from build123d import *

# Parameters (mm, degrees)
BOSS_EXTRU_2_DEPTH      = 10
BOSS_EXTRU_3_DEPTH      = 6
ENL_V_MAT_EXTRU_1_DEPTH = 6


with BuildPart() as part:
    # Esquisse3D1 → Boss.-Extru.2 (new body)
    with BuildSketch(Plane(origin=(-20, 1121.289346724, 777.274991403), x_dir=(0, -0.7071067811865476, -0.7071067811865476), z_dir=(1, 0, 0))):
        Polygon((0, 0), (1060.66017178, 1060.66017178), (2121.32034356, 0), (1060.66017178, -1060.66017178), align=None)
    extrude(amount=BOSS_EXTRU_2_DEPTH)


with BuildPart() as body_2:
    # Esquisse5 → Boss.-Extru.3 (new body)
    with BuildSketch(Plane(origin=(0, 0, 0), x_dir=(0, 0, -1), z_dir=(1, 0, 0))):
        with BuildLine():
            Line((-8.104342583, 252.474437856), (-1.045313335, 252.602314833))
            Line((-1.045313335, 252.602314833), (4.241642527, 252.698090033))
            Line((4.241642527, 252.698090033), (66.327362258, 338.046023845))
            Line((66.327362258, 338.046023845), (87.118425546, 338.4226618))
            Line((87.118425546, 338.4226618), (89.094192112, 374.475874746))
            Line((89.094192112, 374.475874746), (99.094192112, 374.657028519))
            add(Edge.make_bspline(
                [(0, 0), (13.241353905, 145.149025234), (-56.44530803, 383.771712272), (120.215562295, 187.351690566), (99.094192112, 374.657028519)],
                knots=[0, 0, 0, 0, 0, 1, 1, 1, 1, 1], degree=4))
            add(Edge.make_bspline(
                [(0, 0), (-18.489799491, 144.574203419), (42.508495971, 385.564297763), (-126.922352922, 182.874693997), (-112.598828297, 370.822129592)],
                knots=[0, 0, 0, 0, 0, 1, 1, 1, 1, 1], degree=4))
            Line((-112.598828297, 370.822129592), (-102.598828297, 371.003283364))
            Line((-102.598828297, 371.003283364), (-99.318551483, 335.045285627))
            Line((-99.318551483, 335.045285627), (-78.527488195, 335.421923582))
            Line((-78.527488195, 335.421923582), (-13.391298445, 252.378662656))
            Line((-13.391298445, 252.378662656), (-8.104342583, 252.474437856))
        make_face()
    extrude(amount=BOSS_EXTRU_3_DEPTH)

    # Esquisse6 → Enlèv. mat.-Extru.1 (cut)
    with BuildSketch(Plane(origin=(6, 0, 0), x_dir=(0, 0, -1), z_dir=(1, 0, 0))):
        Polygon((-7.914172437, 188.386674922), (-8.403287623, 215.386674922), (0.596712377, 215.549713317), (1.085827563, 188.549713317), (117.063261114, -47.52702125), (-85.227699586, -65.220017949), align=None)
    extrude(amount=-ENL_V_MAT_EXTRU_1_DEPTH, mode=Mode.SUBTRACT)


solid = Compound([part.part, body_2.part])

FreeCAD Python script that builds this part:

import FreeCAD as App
import Part
import Sketcher
from FreeCAD import Vector
Q = App.Units.Quantity

doc = App.newDocument("Part")
params = doc.addObject("Spreadsheet::Sheet", "Params")
for row, (alias, value) in enumerate([
    ("sketch1_width", "1500 mm"),
    ("pad1_length", "10 mm"),
    ("pad2_length", "6 mm"),
    ("pocket1_length", "6 mm"),
], start=1):
    params.set(f"A{row}", alias)
    params.set(f"B{row}", "=" + value)
    params.setAlias(f"B{row}", alias)

body = doc.addObject("PartDesign::Body", "Body")

sketch1 = body.newObject("Sketcher::SketchObject", "Sketch")
sketch1.AttachmentSupport = (doc.getObject("YZ_Plane"), [""])
sketch1.MapMode = "FlatFace"
sketch1.AttachmentOffset = App.Placement(Vector(0, 0, -20), App.Rotation())
sketch1.addGeometry(Part.LineSegment(Vector(1121.289347, -722.725008, 0), Vector(1121.289347, 777.274991, 0)), False)
sketch1.addGeometry(Part.LineSegment(Vector(1121.289347, 777.274991, 0), Vector(-378.710653, 777.274991, 0)), False)
sketch1.addGeometry(Part.LineSegment(Vector(-378.710653, 777.274991, 0), Vector(-378.710653, -722.725008, 0)), False)
sketch1.addGeometry(Part.LineSegment(Vector(-378.710653, -722.725008, 0), Vector(1121.289347, -722.725008, 0)), False)
sketch1.addConstraint(Sketcher.Constraint("Coincident", 0, 2, 1, 1))
sketch1.addConstraint(Sketcher.Constraint("Coincident", 1, 2, 2, 1))
sketch1.addConstraint(Sketcher.Constraint("Coincident", 2, 2, 3, 1))
sketch1.addConstraint(Sketcher.Constraint("Coincident", 3, 2, 0, 1))
sketch1.addConstraint(Sketcher.Constraint("Vertical", 0))
sketch1.addConstraint(Sketcher.Constraint("Horizontal", 1))
sketch1.addConstraint(Sketcher.Constraint("Vertical", 2))
sketch1.addConstraint(Sketcher.Constraint("Horizontal", 3))
sketch1.addConstraint(Sketcher.Constraint("Equal", 3, 0))
sketch1.addConstraint(Sketcher.Constraint("DistanceX", 1, 2, 1, 1, Q("1500 mm")))
sketch1.addConstraint(Sketcher.Constraint("DistanceY", -1, 1, 0, 2, Q("777.274991 mm")))
sketch1.addConstraint(Sketcher.Constraint("DistanceX", -1, 1, 0, 2, Q("1121.289347 mm")))
sketch1.setExpression("Constraints[9]", "Params.sketch1_width")
pad1 = body.newObject("PartDesign::Pad", "Pad")
pad1.Profile = sketch1
pad1.setExpression("Length", "Params.pad1_length")
body2 = doc.addObject("PartDesign::Body", "Body001")

sketch2 = body2.newObject("Sketcher::SketchObject", "Sketch001")
sketch2.AttachmentSupport = (doc.getObject("YZ_Plane001"), [""])
sketch2.MapMode = "FlatFace"
sketch2.addGeometry(Part.LineSegment(Vector(252.602315, 1.045313, 0), Vector(252.474438, 8.104343, 0)), False)
sketch2.addGeometry(Part.LineSegment(Vector(252.474438, 8.104343, 0), Vector(252.378663, 13.391298, 0)), False)
sketch2.addGeometry(Part.LineSegment(Vector(252.378663, 13.391298, 0), Vector(335.421924, 78.527488, 0)), False)
sketch2.addGeometry(Part.LineSegment(Vector(335.421924, 78.527488, 0), Vector(335.045286, 99.318551, 0)), False)
sketch2.addGeometry(Part.LineSegment(Vector(335.045286, 99.318551, 0), Vector(371.003283, 102.598828, 0)), False)
sketch2.addGeometry(Part.LineSegment(Vector(371.003283, 102.598828, 0), Vector(370.82213, 112.598828, 0)), False)
sketch2.addGeometry(Part.BSplineCurve([Vector(0, 0, 0), Vector(144.574203, 18.489799, 0), Vector(385.564298, -42.508496, 0), Vector(182.874694, 126.922353, 0), Vector(370.82213, 112.598828, 0)], [5, 5], [0, 1], False, 4, [1, 1, 1, 1, 1], False), False)
sketch2.addGeometry(Part.BSplineCurve([Vector(0, 0, 0), Vector(145.149025, -13.241354, 0), Vector(383.771712, 56.445308, 0), Vector(187.351691, -120.215562, 0), Vector(374.657029, -99.094192, 0)], [5, 5], [0, 1], False, 4, [1, 1, 1, 1, 1], False), False)
sketch2.addGeometry(Part.LineSegment(Vector(374.657029, -99.094192, 0), Vector(374.475875, -89.094192, 0)), False)
sketch2.addGeometry(Part.LineSegment(Vector(374.475875, -89.094192, 0), Vector(338.422662, -87.118426, 0)), False)
sketch2.addGeometry(Part.LineSegment(Vector(338.422662, -87.118426, 0), Vector(338.046024, -66.327362, 0)), False)
sketch2.addGeometry(Part.LineSegment(Vector(338.046024, -66.327362, 0), Vector(252.69809, -4.241643, 0)), False)
sketch2.addGeometry(Part.LineSegment(Vector(252.69809, -4.241643, 0), Vector(252.602315, 1.045313, 0)), False)
sketch2.addConstraint(Sketcher.Constraint("Block", 6))
sketch2.addConstraint(Sketcher.Constraint("Block", 7))
sketch2.addConstraint(Sketcher.Constraint("Coincident", 0, 2, 1, 1))
sketch2.addConstraint(Sketcher.Constraint("Coincident", 1, 2, 2, 1))
sketch2.addConstraint(Sketcher.Constraint("Coincident", 2, 2, 3, 1))
sketch2.addConstraint(Sketcher.Constraint("Coincident", 3, 2, 4, 1))
sketch2.addConstraint(Sketcher.Constraint("Coincident", 4, 2, 5, 1))
sketch2.addConstraint(Sketcher.Constraint("Coincident", 5, 2, 6, 2))
sketch2.addConstraint(Sketcher.Constraint("Coincident", 7, 2, 8, 1))
sketch2.addConstraint(Sketcher.Constraint("Coincident", 8, 2, 9, 1))
sketch2.addConstraint(Sketcher.Constraint("Coincident", 9, 2, 10, 1))
sketch2.addConstraint(Sketcher.Constraint("Coincident", 10, 2, 11, 1))
sketch2.addConstraint(Sketcher.Constraint("Coincident", 11, 2, 12, 1))
sketch2.addConstraint(Sketcher.Constraint("Coincident", 12, 2, 0, 1))
sketch2.addConstraint(Sketcher.Constraint("DistanceY", 4, 2, 5, 2, Q("10 mm")))
sketch2.addConstraint(Sketcher.Constraint("DistanceX", 1, 2, 9, 2, Q("86.043999 mm")))
sketch2.addConstraint(Sketcher.Constraint("DistanceY", -1, 1, 1, 2, Q("13.391298 mm")))
sketch2.addConstraint(Sketcher.Constraint("DistanceX", 2, 2, 10, 2, Q("2.6241 mm")))
sketch2.addConstraint(Sketcher.Constraint("Distance", 4, Q("36.10731 mm")))
sketch2.addConstraint(Sketcher.Constraint("Distance", 5, Q("10.001641 mm")))
sketch2.addConstraint(Sketcher.Constraint("Distance", 8, Q("10.001641 mm")))
sketch2.addConstraint(Sketcher.Constraint("Distance", 9, Q("36.10731 mm")))
sketch2.addConstraint(Sketcher.Constraint("DistanceY", -1, 1, 2, 2, Q("78.527488 mm")))
sketch2.addConstraint(Sketcher.Constraint("DistanceY", -1, 1, 3, 2, Q("99.318551 mm")))
sketch2.addConstraint(Sketcher.Constraint("DistanceX", -1, 1, 9, 2, Q("338.422662 mm")))
sketch2.addConstraint(Sketcher.Constraint("DistanceX", -1, 1, 11, 2, Q("252.69809 mm")))
sketch2.addConstraint(Sketcher.Constraint("DistanceX", 1, 2, 2, 2, Q("83.043261 mm")))
sketch2.addConstraint(Sketcher.Constraint("DistanceY", 0, 2, 3, 2, Q("91.214209 mm")))
sketch2.addConstraint(Sketcher.Constraint("DistanceX", 0, 2, 5, 2, Q("118.347692 mm")))
sketch2.addConstraint(Sketcher.Constraint("DistanceX", 2, 2, 8, 2, Q("39.053951 mm")))
sketch2.addConstraint(Sketcher.Constraint("DistanceY", 8, 2, 10, 2, Q("22.76683 mm")))
sketch2.addConstraint(Sketcher.Constraint("DistanceY", 11, 2, 1, 2, Q("17.632941 mm")))
sketch2.addConstraint(Sketcher.Constraint("DistanceY", 12, 2, 0, 2, Q("7.059029 mm")))
sketch2.addConstraint(Sketcher.Constraint("DistanceX", 12, 2, 10, 2, Q("85.443709 mm")))
pad2 = body2.newObject("PartDesign::Pad", "Pad001")
pad2.Profile = sketch2
pad2.setExpression("Length", "Params.pad2_length")

sketch3 = body2.newObject("Sketcher::SketchObject", "Sketch002")
sketch3.AttachmentSupport = (doc.getObject("YZ_Plane001"), [""])
sketch3.MapMode = "FlatFace"
sketch3.AttachmentOffset = App.Placement(Vector(0, 0, 6), App.Rotation())
sketch3.addGeometry(Part.LineSegment(Vector(215.386675, 8.403288, 0), Vector(188.386675, 7.914172, 0)), False)
sketch3.addGeometry(Part.LineSegment(Vector(188.386675, 7.914172, 0), Vector(-65.220018, 85.2277, 0)), False)
sketch3.addGeometry(Part.LineSegment(Vector(-65.220018, 85.2277, 0), Vector(-47.527021, -117.063261, 0)), False)
sketch3.addGeometry(Part.LineSegment(Vector(-47.527021, -117.063261, 0), Vector(188.549713, -1.085828, 0)), False)
sketch3.addGeometry(Part.LineSegment(Vector(188.549713, -1.085828, 0), Vector(215.549713, -0.596712, 0)), False)
sketch3.addGeometry(Part.LineSegment(Vector(215.549713, -0.596712, 0), Vector(215.386675, 8.403288, 0)), False)
sketch3.addConstraint(Sketcher.Constraint("Coincident", 0, 2, 1, 1))
sketch3.addConstraint(Sketcher.Constraint("Coincident", 1, 2, 2, 1))
sketch3.addConstraint(Sketcher.Constraint("Coincident", 2, 2, 3, 1))
sketch3.addConstraint(Sketcher.Constraint("Coincident", 3, 2, 4, 1))
sketch3.addConstraint(Sketcher.Constraint("Coincident", 4, 2, 5, 1))
sketch3.addConstraint(Sketcher.Constraint("Coincident", 5, 2, 0, 1))
sketch3.addConstraint(Sketcher.Constraint("Parallel", 0, 4))
sketch3.addConstraint(Sketcher.Constraint("Perpendicular", 4, 5))
sketch3.addConstraint(Sketcher.Constraint("Equal", 0, 4))
sketch3.addConstraint(Sketcher.Constraint("DistanceY", 3, 2, 0, 2, Q("9 mm")))
sketch3.addConstraint(Sketcher.Constraint("DistanceX", 3, 2, 4, 2, Q("27 mm")))
sketch3.addConstraint(Sketcher.Constraint("DistanceY", -1, 1, 1, 2, Q("85.2277 mm")))
sketch3.addConstraint(Sketcher.Constraint("Distance", 0, Q("27.00443 mm")))
sketch3.addConstraint(Sketcher.Constraint("Distance", 1, Q("265.129659 mm")))
sketch3.addConstraint(Sketcher.Constraint("Distance", 2, Q("203.063229 mm")))
sketch3.addConstraint(Sketcher.Constraint("DistanceX", 2, 2, -1, 1, Q("47.527021 mm")))
sketch3.addConstraint(Sketcher.Constraint("DistanceY", 2, 2, -1, 1, Q("117.063261 mm")))
sketch3.addConstraint(Sketcher.Constraint("DistanceX", 1, 2, 3, 2, Q("253.769731 mm")))
pocket1 = body2.newObject("PartDesign::Pocket", "Pocket")
pocket1.Profile = sketch3
pocket1.setExpression("Length", "Params.pocket1_length")

doc.recompute()
